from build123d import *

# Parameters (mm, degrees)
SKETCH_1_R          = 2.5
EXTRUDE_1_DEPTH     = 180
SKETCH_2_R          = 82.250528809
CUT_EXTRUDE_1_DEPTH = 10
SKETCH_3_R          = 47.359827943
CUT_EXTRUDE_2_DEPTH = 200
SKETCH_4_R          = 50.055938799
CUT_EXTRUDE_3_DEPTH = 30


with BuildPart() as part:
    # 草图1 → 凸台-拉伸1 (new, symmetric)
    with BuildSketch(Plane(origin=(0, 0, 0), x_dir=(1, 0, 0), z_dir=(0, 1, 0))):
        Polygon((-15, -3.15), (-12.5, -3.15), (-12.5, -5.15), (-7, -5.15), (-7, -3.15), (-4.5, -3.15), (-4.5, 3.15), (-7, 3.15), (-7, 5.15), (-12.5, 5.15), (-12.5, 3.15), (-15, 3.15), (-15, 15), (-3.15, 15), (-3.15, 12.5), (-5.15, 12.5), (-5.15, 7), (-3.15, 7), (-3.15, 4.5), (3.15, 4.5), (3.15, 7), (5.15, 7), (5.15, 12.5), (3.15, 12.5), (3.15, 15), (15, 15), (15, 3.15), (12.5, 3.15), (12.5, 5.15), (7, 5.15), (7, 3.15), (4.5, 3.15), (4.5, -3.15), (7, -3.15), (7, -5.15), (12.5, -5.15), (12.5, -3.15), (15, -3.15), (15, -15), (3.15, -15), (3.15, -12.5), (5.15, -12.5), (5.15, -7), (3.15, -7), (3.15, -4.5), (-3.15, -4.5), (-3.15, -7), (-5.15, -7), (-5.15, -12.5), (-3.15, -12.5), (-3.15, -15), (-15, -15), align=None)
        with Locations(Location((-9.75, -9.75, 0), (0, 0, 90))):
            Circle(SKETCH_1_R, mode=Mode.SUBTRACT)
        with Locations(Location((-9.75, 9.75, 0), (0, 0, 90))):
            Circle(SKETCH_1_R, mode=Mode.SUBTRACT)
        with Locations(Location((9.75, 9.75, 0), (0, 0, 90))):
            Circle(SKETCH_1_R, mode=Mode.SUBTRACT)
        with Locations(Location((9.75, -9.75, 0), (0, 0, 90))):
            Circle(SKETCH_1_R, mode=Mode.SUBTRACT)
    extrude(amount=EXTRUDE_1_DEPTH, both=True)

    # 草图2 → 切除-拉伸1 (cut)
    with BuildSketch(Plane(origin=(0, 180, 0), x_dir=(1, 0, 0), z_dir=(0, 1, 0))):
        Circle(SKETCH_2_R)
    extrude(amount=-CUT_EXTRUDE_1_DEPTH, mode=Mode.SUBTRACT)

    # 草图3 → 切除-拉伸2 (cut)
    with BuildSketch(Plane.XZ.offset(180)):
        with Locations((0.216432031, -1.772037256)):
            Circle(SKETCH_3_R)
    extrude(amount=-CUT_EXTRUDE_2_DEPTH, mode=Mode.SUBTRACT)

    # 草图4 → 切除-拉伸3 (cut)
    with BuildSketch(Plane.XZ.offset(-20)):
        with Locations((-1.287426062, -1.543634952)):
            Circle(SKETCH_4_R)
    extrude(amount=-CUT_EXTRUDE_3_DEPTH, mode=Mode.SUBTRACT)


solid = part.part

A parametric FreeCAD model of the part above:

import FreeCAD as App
import Part
import Sketcher
from FreeCAD import Vector

doc = App.newDocument("Part")
body = doc.addObject("PartDesign::Body", "Body")

# Sketch on XZ plane
sketch1 = body.newObject("Sketcher::SketchObject", "Sketch")
sketch1.AttachmentSupport = (doc.getObject("XZ_Plane"), [""])
sketch1.MapMode = "FlatFace"
sketch1.addGeometry([
    Part.LineSegment(Vector(-12.5, 3.1, 0), Vector(-15, 3.1, 0)),  # 0
    Part.LineSegment(Vector(-15, 3.1, 0), Vector(-15, 15, 0)),  # 1
    Part.LineSegment(Vector(-15, 15, 0), Vector(-3.1, 15, 0)),  # 2
    Part.LineSegment(Vector(-3.1, 15, 0), Vector(-3.1, 12.5, 0)),  # 3
    Part.LineSegment(Vector(-3.1, 12.5, 0), Vector(-5.2, 12.5, 0)),  # 4
    Part.LineSegment(Vector(-5.2, 12.5, 0), Vector(-5.2, 7, 0)),  # 5
    Part.LineSegment(Vector(-5.2, 7, 0), Vector(-3.1, 7, 0)),  # 6
    Part.LineSegment(Vector(-3.1, 7, 0), Vector(-3.1, 4.5, 0)),  # 7
    Part.LineSegment(Vector(-3.1, 4.5, 0), Vector(3.1, 4.5, 0)),  # 8
    Part.LineSegment(Vector(3.1, 4.5, 0), Vector(3.1, 7, 0)),  # 9
    Part.LineSegment(Vector(3.1, 7, 0), Vector(5.2, 7, 0)),  # 10
    Part.LineSegment(Vector(5.2, 7, 0), Vector(5.2, 12.5, 0)),  # 11
    Part.LineSegment(Vector(5.2, 12.5, 0), Vector(3.1, 12.5, 0)),  # 12
    Part.LineSegment(Vector(3.1, 12.5, 0), Vector(3.1, 15, 0)),  # 13
    Part.LineSegment(Vector(3.1, 15, 0), Vector(15, 15, 0)),  # 14
    Part.LineSegment(Vector(15, 15, 0), Vector(15, 3.1, 0)),  # 15
    Part.LineSegment(Vector(15, 3.1, 0), Vector(12.5, 3.1, 0)),  # 16
    Part.LineSegment(Vector(12.5, 3.1, 0), Vector(12.5, 5.2, 0)),  # 17
    Part.LineSegment(Vector(12.5, 5.2, 0), Vector(7, 5.2, 0)),  # 18
    Part.LineSegment(Vector(7, 5.2, 0), Vector(7, 3.1, 0)),  # 19
    Part.LineSegment(Vector(7, 3.1, 0), Vector(4.5, 3.1, 0)),  # 20
    Part.LineSegment(Vector(4.5, 3.1, 0), Vector(4.5, -3.1, 0)),  # 21
    Part.LineSegment(Vector(4.5, -3.1, 0), Vector(7, -3.1, 0)),  # 22
    Part.LineSegment(Vector(7, -3.1, 0), Vector(7, -5.2, 0)),  # 23
    Part.LineSegment(Vector(7, -5.2, 0), Vector(12.5, -5.2, 0)),  # 24
    Part.LineSegment(Vector(12.5, -5.2, 0), Vector(12.5, -3.1, 0)),  # 25
    Part.LineSegment(Vector(12.5, -3.1, 0), Vector(15, -3.1, 0)),  # 26
    Part.LineSegment(Vector(15, -3.1, 0), Vector(15, -15, 0)),  # 27
    Part.LineSegment(Vector(15, -15, 0), Vector(3.1, -15, 0)),  # 28
    Part.LineSegment(Vector(3.1, -15, 0), Vector(3.1, -12.5, 0)),  # 29
    Part.LineSegment(Vector(3.1, -12.5, 0), Vector(5.2, -12.5, 0)),  # 30
    Part.LineSegment(Vector(5.2, -12.5, 0), Vector(5.2, -7, 0)),  # 31
    Part.LineSegment(Vector(5.2, -7, 0), Vector(3.1, -7, 0)),  # 32
    Part.LineSegment(Vector(3.1, -7, 0), Vector(3.1, -4.5, 0)),  # 33
    Part.LineSegment(Vector(3.1, -4.5, 0), Vector(-3.1, -4.5, 0)),  # 34
    Part.LineSegment(Vector(-3.1, -4.5, 0), Vector(-3.1, -7, 0)),  # 35
    Part.LineSegment(Vector(-3.1, -7, 0), Vector(-5.2, -7, 0)),  # 36
    Part.LineSegment(Vector(-5.2, -7, 0), Vector(-5.2, -12.5, 0)),  # 37
    Part.LineSegment(Vector(-5.2, -12.5, 0), Vector(-3.1, -12.5, 0)),  # 38
    Part.LineSegment(Vector(-3.1, -12.5, 0), Vector(-3.1, -15, 0)),  # 39
    Part.LineSegment(Vector(-3.1, -15, 0), Vector(-15, -15, 0)),  # 40
    Part.LineSegment(Vector(-15, -15, 0), Vector(-15, -3.1, 0)),  # 41
    Part.LineSegment(Vector(-15, -3.1, 0), Vector(-12.5, -3.1, 0)),  # 42
    Part.LineSegment(Vector(-12.5, -3.1, 0), Vector(-12.5, -5.2, 0)),  # 43
    Part.LineSegment(Vector(-12.5, -5.2, 0), Vector(-7, -5.2, 0)),  # 44
    Part.LineSegment(Vector(-7, -5.2, 0), Vector(-7, -3.1, 0)),  # 45
    Part.LineSegment(Vector(-7, -3.1, 0), Vector(-4.5, -3.1, 0)),  # 46
    Part.LineSegment(Vector(-4.5, -3.1, 0), Vector(-4.5, 3.1, 0)),  # 47
    Part.LineSegment(Vector(-4.5, 3.1, 0), Vector(-7, 3.1, 0)),  # 48
    Part.LineSegment(Vector(-7, 3.1, 0), Vector(-7, 5.2, 0)),  # 49
    Part.LineSegment(Vector(-7, 5.2, 0), Vector(-12.5, 5.2, 0)),  # 50
    Part.LineSegment(Vector(-12.5, 5.2, 0), Vector(-12.5, 3.1, 0)),  # 51
    Part.Circle(Vector(9.8, 9.8, 0), Vector(0, 0, 1), 2.5),  # 52
    Part.Circle(Vector(-9.8, 9.8, 0), Vector(0, 0, 1), 2.5),  # 53
    Part.Circle(Vector(9.8, -9.8, 0), Vector(0, 0, 1), 2.5),  # 54
    Part.Circle(Vector(-9.8, -9.8, 0), Vector(0, 0, 1), 2.5),  # 55
], False)
sketch1.addConstraint([
    Sketcher.Constraint("Coincident", 0, 2, 1, 1),
    Sketcher.Constraint("Coincident", 1, 2, 2, 1),
    Sketcher.Constraint("Coincident", 2, 2, 3, 1),
    Sketcher.Constraint("Coincident", 3, 2, 4, 1),
    Sketcher.Constraint("Coincident", 4, 2, 5, 1),
    Sketcher.Constraint("Coincident", 5, 2, 6, 1),
    Sketcher.Constraint("Coincident", 6, 2, 7, 1),
    Sketcher.Constraint("Coincident", 7, 2, 8, 1),
    Sketcher.Constraint("Coincident", 8, 2, 9, 1),
    Sketcher.Constraint("Coincident", 9, 2, 10, 1),
    Sketcher.Constraint("Coincident", 10, 2, 11, 1),
    Sketcher.Constraint("Coincident", 11, 2, 12, 1),
    Sketcher.Constraint("Coincident", 12, 2, 13, 1),
    Sketcher.Constraint("Coincident", 13, 2, 14, 1),
    Sketcher.Constraint("Coincident", 14, 2, 15, 1),
    Sketcher.Constraint("Coincident", 15, 2, 16, 1),
    Sketcher.Constraint("Coincident", 16, 2, 17, 1),
    Sketcher.Constraint("Coincident", 17, 2, 18, 1),
    Sketcher.Constraint("Coincident", 18, 2, 19, 1),
    Sketcher.Constraint("Coincident", 19, 2, 20, 1),
    Sketcher.Constraint("Coincident", 20, 2, 21, 1),
    Sketcher.Constraint("Coincident", 21, 2, 22, 1),
    Sketcher.Constraint("Coincident", 22, 2, 23, 1),
    Sketcher.Constraint("Coincident", 23, 2, 24, 1),
    Sketcher.Constraint("Coincident", 24, 2, 25, 1),
    Sketcher.Constraint("Coincident", 25, 2, 26, 1),
    Sketcher.Constraint("Coincident", 26, 2, 27, 1),
    Sketcher.Constraint("Coincident", 27, 2, 28, 1),
    Sketcher.Constraint("Coincident", 28, 2, 29, 1),
    Sketcher.Constraint("Coincident", 29, 2, 30, 1),
    Sketcher.Constraint("Coincident", 30, 2, 31, 1),
    Sketcher.Constraint("Coincident", 31, 2, 32, 1),
    Sketcher.Constraint("Coincident", 32, 2, 33, 1),
    Sketcher.Constraint("Coincident", 33, 2, 34, 1),
    Sketcher.Constraint("Coincident", 34, 2, 35, 1),
    Sketcher.Constraint("Coincident", 35, 2, 36, 1),
    Sketcher.Constraint("Coincident", 36, 2, 37, 1),
    Sketcher.Constraint("Coincident", 37, 2, 38, 1),
    Sketcher.Constraint("Coincident", 38, 2, 39, 1),
    Sketcher.Constraint("Coincident", 39, 2, 40, 1),
    Sketcher.Constraint("Coincident", 40, 2, 41, 1),
    Sketcher.Constraint("Coincident", 41, 2, 42, 1),
    Sketcher.Constraint("Coincident", 42, 2, 43, 1),
    Sketcher.Constraint("Coincident", 43, 2, 44, 1),
    Sketcher.Constraint("Coincident", 44, 2, 45, 1),
    Sketcher.Constraint("Coincident", 45, 2, 46, 1),
    Sketcher.Constraint("Coincident", 46, 2, 47, 1),
    Sketcher.Constraint("Coincident", 47, 2, 48, 1),
    Sketcher.Constraint("Coincident", 48, 2, 49, 1),
    Sketcher.Constraint("Coincident", 49, 2, 50, 1),
    Sketcher.Constraint("Coincident", 50, 2, 51, 1),
    Sketcher.Constraint("Coincident", 51, 2, 0, 1),
    Sketcher.Constraint("Horizontal", 0),
    Sketcher.Constraint("Vertical", 1),
    Sketcher.Constraint("Horizontal", 2),
    Sketcher.Constraint("Vertical", 3),
    Sketcher.Constraint("Horizontal", 4),
    Sketcher.Constraint("Vertical", 5),
    Sketcher.Constraint("Horizontal", 6),
    Sketcher.Constraint("Vertical", 7),
    Sketcher.Constraint("Horizontal", 8),
    Sketcher.Constraint("Vertical", 9),
    Sketcher.Constraint("Horizontal", 10),
    Sketcher.Constraint("Vertical", 11),
    Sketcher.Constraint("Horizontal", 12),
    Sketcher.Constraint("Vertical", 13),
    Sketcher.Constraint("Horizontal", 14),
    Sketcher.Constraint("Vertical", 15),
    Sketcher.Constraint("Horizontal", 16),
    Sketcher.Constraint("Vertical", 17),
    Sketcher.Constraint("Horizontal", 18),
    Sketcher.Constraint("Vertical", 19),
    Sketcher.Constraint("Horizontal", 20),
    Sketcher.Constraint("Vertical", 21),
    Sketcher.Constraint("Horizontal", 22),
    Sketcher.Constraint("Vertical", 23),
    Sketcher.Constraint("Horizontal", 24),
    Sketcher.Constraint("Vertical", 25),
    Sketcher.Constraint("Horizontal", 26),
    Sketcher.Constraint("Vertical", 27),
    Sketcher.Constraint("Horizontal", 28),
    Sketcher.Constraint("Vertical", 29),
    Sketcher.Constraint("Horizontal", 30),
    Sketcher.Constraint("Vertical", 31),
    Sketcher.Constraint("Horizontal", 32),
    Sketcher.Constraint("Vertical", 33),
    Sketcher.Constraint("Horizontal", 34),
    Sketcher.Constraint("Vertical", 35),
    Sketcher.Constraint("Horizontal", 36),
    Sketcher.Constraint("Vertical", 37),
    Sketcher.Constraint("Horizontal", 38),
    Sketcher.Constraint("Vertical", 39),
    Sketcher.Constraint("Horizontal", 40),
    Sketcher.Constraint("Vertical", 41),
    Sketcher.Constraint("Horizontal", 42),
    Sketcher.Constraint("Vertical", 43),
    Sketcher.Constraint("Horizontal", 44),
    Sketcher.Constraint("Vertical", 45),
    Sketcher.Constraint("Horizontal", 46),
    Sketcher.Constraint("Vertical", 47),
    Sketcher.Constraint("Horizontal", 48),
    Sketcher.Constraint("Vertical", 49),
    Sketcher.Constraint("Horizontal", 50),
    Sketcher.Constraint("Vertical", 51),
    Sketcher.Constraint("Equal", 52, 53),
    Sketcher.Constraint("Equal", 53, 54),
    Sketcher.Constraint("Equal", 54, 55),
    Sketcher.Constraint("Symmetric", 53, 3, 54, 3, -1, 1),
    Sketcher.Constraint("Symmetric", 52, 3, 55, 3, -1, 1),
    Sketcher.Constraint("Symmetric", 0, 2, 26, 2, -1, 1),
    Sketcher.Constraint("Symmetric", 2, 2, 28, 2, -1, 1),
    Sketcher.Constraint("Symmetric", 4, 2, 30, 2, -1, 1),
    Sketcher.Constraint("Symmetric", 6, 2, 32, 2, -1, 1),
    Sketcher.Constraint("Symmetric", 8, 2, 34, 2, -1, 1),
    Sketcher.Constraint("Symmetric", 10, 2, 36, 2, -1, 1),
    Sketcher.Constraint("Symmetric", 12, 2, 38, 2, -1, 1),
    Sketcher.Constraint("Symmetric", 14, 2, 40, 2, -1, 1),
    Sketcher.Constraint("Symmetric", 16, 2, 42, 2, -1, 1),
    Sketcher.Constraint("Symmetric", 18, 2, 44, 2, -1, 1),
    Sketcher.Constraint("Symmetric", 20, 2, 46, 2, -1, 1),
    Sketcher.Constraint("Symmetric", 22, 2, 48, 2, -1, 1),
    Sketcher.Constraint("Symmetric", 24, 2, 50, 2, -1, 1),
    Sketcher.Constraint("Symmetric", 52, 3, 53, 3, -2),
    Sketcher.Constraint("Symmetric", 6, 2, 9, 2, -2),
    Sketcher.Constraint("Symmetric", 4, 2, 11, 2, -2),
    Sketcher.Constraint("Symmetric", 2, 2, 13, 2, -2),
    Sketcher.Constraint("Symmetric", 0, 2, 15, 2, -2),
    Sketcher.Constraint("Symmetric", 24, 2, 43, 2, -2),
    Sketcher.Constraint("Symmetric", 22, 2, 45, 2, -2),
    Sketcher.Constraint("Horizontal", 16, 2, 19, 2),
    Sketcher.Constraint("Vertical", 3, 2, 6, 2),
    Sketcher.Constraint("Equal", 16, 20),
    Sketcher.Constraint("Equal", 40, 1),
    Sketcher.Constraint("Equal", 48, 3),
    Sketcher.Constraint("Equal", 50, 5),
    Sketcher.Constraint("Equal", 3, 7),
    Sketcher.Constraint("Equal", 38, 17),
    Sketcher.Constraint("Equal", 34, 21),
    Sketcher.Constraint("Diameter", 52, 5.0),
    Sketcher.Constraint("DistanceX", 4, 2, 4, 1, 2.0),
    Sketcher.Constraint("DistanceX", 0, 2, 0, 1, 2.5),
    Sketcher.Constraint("DistanceX", 8, 1, 8, 2, 6.3),
    Sketcher.Constraint("DistanceX", 18, 2, 18, 1, 5.5),
    Sketcher.Constraint("DistanceX", 0, 2, -1, 1, 15.0),
    Sketcher.Constraint("DistanceX", 53, 3, 52, 3, 19.5),
    Sketcher.Constraint("DistanceY", 54, 3, 52, 3, 19.5),
])
pad1 = body.newObject("PartDesign::Pad", "Pad")
pad1.Profile = sketch1
pad1.Length = 360
pad1.Midplane = True

# Sketch on XZ plane
sketch2 = body.newObject("Sketcher::SketchObject", "Sketch001")
sketch2.AttachmentSupport = (doc.getObject("XZ_Plane"), [""])
sketch2.MapMode = "FlatFace"
sketch2.AttachmentOffset = App.Placement(Vector(0, 0, -180), App.Rotation())
sketch2.addGeometry(Part.Circle(Vector(0, 0, 0), Vector(0, 0, 1), 82), False)
sketch2.addConstraint([
    Sketcher.Constraint("Coincident", 0, 3, -1, 1),
    Sketcher.Constraint("Diameter", 0, 164.501058),
])
pocket1 = body.newObject("PartDesign::Pocket", "Pocket")
pocket1.Profile = sketch2
pocket1.Length = 10
pocket1.Reversed = True

# Sketch on XZ plane
sketch3 = body.newObject("Sketcher::SketchObject", "Sketch002")
sketch3.AttachmentSupport = (doc.getObject("XZ_Plane"), [""])
sketch3.MapMode = "FlatFace"
sketch3.AttachmentOffset = App.Placement(Vector(0, 0, 180), App.Rotation())
sketch3.addGeometry(Part.Circle(Vector(0, -2, 0), Vector(0, 0, 1), 47), False)
sketch3.addConstraint([
    Sketcher.Constraint("Diameter", 0, 94.719656),
    Sketcher.Constraint("DistanceX", -1, 1, 0, 3, 0.216432),
    Sketcher.Constraint("DistanceY", 0, 3, -1, 1, 1.772037),
])
pocket2 = body.newObject("PartDesign::Pocket", "Pocket001")
pocket2.Profile = sketch3
pocket2.Length = 200

# Sketch on XZ plane
sketch4 = body.newObject("Sketcher::SketchObject", "Sketch003")
sketch4.AttachmentSupport = (doc.getObject("XZ_Plane"), [""])
sketch4.MapMode = "FlatFace"
sketch4.AttachmentOffset = App.Placement(Vector(0, 0, -20), App.Rotation())
sketch4.addGeometry(Part.Circle(Vector(-1, -2, 0), Vector(0, 0, 1), 50), False)
sketch4.addConstraint([
    Sketcher.Constraint("Diameter", 0, 100.111878),
    Sketcher.Constraint("DistanceX", 0, 3, -1, 1, 1.287426),
    Sketcher.Constraint("DistanceY", 0, 3, -1, 1, 1.543635),
])
pocket3 = body.newObject("PartDesign::Pocket", "Pocket002")
pocket3.Profile = sketch4
pocket3.Length = 30

doc.recompute()
